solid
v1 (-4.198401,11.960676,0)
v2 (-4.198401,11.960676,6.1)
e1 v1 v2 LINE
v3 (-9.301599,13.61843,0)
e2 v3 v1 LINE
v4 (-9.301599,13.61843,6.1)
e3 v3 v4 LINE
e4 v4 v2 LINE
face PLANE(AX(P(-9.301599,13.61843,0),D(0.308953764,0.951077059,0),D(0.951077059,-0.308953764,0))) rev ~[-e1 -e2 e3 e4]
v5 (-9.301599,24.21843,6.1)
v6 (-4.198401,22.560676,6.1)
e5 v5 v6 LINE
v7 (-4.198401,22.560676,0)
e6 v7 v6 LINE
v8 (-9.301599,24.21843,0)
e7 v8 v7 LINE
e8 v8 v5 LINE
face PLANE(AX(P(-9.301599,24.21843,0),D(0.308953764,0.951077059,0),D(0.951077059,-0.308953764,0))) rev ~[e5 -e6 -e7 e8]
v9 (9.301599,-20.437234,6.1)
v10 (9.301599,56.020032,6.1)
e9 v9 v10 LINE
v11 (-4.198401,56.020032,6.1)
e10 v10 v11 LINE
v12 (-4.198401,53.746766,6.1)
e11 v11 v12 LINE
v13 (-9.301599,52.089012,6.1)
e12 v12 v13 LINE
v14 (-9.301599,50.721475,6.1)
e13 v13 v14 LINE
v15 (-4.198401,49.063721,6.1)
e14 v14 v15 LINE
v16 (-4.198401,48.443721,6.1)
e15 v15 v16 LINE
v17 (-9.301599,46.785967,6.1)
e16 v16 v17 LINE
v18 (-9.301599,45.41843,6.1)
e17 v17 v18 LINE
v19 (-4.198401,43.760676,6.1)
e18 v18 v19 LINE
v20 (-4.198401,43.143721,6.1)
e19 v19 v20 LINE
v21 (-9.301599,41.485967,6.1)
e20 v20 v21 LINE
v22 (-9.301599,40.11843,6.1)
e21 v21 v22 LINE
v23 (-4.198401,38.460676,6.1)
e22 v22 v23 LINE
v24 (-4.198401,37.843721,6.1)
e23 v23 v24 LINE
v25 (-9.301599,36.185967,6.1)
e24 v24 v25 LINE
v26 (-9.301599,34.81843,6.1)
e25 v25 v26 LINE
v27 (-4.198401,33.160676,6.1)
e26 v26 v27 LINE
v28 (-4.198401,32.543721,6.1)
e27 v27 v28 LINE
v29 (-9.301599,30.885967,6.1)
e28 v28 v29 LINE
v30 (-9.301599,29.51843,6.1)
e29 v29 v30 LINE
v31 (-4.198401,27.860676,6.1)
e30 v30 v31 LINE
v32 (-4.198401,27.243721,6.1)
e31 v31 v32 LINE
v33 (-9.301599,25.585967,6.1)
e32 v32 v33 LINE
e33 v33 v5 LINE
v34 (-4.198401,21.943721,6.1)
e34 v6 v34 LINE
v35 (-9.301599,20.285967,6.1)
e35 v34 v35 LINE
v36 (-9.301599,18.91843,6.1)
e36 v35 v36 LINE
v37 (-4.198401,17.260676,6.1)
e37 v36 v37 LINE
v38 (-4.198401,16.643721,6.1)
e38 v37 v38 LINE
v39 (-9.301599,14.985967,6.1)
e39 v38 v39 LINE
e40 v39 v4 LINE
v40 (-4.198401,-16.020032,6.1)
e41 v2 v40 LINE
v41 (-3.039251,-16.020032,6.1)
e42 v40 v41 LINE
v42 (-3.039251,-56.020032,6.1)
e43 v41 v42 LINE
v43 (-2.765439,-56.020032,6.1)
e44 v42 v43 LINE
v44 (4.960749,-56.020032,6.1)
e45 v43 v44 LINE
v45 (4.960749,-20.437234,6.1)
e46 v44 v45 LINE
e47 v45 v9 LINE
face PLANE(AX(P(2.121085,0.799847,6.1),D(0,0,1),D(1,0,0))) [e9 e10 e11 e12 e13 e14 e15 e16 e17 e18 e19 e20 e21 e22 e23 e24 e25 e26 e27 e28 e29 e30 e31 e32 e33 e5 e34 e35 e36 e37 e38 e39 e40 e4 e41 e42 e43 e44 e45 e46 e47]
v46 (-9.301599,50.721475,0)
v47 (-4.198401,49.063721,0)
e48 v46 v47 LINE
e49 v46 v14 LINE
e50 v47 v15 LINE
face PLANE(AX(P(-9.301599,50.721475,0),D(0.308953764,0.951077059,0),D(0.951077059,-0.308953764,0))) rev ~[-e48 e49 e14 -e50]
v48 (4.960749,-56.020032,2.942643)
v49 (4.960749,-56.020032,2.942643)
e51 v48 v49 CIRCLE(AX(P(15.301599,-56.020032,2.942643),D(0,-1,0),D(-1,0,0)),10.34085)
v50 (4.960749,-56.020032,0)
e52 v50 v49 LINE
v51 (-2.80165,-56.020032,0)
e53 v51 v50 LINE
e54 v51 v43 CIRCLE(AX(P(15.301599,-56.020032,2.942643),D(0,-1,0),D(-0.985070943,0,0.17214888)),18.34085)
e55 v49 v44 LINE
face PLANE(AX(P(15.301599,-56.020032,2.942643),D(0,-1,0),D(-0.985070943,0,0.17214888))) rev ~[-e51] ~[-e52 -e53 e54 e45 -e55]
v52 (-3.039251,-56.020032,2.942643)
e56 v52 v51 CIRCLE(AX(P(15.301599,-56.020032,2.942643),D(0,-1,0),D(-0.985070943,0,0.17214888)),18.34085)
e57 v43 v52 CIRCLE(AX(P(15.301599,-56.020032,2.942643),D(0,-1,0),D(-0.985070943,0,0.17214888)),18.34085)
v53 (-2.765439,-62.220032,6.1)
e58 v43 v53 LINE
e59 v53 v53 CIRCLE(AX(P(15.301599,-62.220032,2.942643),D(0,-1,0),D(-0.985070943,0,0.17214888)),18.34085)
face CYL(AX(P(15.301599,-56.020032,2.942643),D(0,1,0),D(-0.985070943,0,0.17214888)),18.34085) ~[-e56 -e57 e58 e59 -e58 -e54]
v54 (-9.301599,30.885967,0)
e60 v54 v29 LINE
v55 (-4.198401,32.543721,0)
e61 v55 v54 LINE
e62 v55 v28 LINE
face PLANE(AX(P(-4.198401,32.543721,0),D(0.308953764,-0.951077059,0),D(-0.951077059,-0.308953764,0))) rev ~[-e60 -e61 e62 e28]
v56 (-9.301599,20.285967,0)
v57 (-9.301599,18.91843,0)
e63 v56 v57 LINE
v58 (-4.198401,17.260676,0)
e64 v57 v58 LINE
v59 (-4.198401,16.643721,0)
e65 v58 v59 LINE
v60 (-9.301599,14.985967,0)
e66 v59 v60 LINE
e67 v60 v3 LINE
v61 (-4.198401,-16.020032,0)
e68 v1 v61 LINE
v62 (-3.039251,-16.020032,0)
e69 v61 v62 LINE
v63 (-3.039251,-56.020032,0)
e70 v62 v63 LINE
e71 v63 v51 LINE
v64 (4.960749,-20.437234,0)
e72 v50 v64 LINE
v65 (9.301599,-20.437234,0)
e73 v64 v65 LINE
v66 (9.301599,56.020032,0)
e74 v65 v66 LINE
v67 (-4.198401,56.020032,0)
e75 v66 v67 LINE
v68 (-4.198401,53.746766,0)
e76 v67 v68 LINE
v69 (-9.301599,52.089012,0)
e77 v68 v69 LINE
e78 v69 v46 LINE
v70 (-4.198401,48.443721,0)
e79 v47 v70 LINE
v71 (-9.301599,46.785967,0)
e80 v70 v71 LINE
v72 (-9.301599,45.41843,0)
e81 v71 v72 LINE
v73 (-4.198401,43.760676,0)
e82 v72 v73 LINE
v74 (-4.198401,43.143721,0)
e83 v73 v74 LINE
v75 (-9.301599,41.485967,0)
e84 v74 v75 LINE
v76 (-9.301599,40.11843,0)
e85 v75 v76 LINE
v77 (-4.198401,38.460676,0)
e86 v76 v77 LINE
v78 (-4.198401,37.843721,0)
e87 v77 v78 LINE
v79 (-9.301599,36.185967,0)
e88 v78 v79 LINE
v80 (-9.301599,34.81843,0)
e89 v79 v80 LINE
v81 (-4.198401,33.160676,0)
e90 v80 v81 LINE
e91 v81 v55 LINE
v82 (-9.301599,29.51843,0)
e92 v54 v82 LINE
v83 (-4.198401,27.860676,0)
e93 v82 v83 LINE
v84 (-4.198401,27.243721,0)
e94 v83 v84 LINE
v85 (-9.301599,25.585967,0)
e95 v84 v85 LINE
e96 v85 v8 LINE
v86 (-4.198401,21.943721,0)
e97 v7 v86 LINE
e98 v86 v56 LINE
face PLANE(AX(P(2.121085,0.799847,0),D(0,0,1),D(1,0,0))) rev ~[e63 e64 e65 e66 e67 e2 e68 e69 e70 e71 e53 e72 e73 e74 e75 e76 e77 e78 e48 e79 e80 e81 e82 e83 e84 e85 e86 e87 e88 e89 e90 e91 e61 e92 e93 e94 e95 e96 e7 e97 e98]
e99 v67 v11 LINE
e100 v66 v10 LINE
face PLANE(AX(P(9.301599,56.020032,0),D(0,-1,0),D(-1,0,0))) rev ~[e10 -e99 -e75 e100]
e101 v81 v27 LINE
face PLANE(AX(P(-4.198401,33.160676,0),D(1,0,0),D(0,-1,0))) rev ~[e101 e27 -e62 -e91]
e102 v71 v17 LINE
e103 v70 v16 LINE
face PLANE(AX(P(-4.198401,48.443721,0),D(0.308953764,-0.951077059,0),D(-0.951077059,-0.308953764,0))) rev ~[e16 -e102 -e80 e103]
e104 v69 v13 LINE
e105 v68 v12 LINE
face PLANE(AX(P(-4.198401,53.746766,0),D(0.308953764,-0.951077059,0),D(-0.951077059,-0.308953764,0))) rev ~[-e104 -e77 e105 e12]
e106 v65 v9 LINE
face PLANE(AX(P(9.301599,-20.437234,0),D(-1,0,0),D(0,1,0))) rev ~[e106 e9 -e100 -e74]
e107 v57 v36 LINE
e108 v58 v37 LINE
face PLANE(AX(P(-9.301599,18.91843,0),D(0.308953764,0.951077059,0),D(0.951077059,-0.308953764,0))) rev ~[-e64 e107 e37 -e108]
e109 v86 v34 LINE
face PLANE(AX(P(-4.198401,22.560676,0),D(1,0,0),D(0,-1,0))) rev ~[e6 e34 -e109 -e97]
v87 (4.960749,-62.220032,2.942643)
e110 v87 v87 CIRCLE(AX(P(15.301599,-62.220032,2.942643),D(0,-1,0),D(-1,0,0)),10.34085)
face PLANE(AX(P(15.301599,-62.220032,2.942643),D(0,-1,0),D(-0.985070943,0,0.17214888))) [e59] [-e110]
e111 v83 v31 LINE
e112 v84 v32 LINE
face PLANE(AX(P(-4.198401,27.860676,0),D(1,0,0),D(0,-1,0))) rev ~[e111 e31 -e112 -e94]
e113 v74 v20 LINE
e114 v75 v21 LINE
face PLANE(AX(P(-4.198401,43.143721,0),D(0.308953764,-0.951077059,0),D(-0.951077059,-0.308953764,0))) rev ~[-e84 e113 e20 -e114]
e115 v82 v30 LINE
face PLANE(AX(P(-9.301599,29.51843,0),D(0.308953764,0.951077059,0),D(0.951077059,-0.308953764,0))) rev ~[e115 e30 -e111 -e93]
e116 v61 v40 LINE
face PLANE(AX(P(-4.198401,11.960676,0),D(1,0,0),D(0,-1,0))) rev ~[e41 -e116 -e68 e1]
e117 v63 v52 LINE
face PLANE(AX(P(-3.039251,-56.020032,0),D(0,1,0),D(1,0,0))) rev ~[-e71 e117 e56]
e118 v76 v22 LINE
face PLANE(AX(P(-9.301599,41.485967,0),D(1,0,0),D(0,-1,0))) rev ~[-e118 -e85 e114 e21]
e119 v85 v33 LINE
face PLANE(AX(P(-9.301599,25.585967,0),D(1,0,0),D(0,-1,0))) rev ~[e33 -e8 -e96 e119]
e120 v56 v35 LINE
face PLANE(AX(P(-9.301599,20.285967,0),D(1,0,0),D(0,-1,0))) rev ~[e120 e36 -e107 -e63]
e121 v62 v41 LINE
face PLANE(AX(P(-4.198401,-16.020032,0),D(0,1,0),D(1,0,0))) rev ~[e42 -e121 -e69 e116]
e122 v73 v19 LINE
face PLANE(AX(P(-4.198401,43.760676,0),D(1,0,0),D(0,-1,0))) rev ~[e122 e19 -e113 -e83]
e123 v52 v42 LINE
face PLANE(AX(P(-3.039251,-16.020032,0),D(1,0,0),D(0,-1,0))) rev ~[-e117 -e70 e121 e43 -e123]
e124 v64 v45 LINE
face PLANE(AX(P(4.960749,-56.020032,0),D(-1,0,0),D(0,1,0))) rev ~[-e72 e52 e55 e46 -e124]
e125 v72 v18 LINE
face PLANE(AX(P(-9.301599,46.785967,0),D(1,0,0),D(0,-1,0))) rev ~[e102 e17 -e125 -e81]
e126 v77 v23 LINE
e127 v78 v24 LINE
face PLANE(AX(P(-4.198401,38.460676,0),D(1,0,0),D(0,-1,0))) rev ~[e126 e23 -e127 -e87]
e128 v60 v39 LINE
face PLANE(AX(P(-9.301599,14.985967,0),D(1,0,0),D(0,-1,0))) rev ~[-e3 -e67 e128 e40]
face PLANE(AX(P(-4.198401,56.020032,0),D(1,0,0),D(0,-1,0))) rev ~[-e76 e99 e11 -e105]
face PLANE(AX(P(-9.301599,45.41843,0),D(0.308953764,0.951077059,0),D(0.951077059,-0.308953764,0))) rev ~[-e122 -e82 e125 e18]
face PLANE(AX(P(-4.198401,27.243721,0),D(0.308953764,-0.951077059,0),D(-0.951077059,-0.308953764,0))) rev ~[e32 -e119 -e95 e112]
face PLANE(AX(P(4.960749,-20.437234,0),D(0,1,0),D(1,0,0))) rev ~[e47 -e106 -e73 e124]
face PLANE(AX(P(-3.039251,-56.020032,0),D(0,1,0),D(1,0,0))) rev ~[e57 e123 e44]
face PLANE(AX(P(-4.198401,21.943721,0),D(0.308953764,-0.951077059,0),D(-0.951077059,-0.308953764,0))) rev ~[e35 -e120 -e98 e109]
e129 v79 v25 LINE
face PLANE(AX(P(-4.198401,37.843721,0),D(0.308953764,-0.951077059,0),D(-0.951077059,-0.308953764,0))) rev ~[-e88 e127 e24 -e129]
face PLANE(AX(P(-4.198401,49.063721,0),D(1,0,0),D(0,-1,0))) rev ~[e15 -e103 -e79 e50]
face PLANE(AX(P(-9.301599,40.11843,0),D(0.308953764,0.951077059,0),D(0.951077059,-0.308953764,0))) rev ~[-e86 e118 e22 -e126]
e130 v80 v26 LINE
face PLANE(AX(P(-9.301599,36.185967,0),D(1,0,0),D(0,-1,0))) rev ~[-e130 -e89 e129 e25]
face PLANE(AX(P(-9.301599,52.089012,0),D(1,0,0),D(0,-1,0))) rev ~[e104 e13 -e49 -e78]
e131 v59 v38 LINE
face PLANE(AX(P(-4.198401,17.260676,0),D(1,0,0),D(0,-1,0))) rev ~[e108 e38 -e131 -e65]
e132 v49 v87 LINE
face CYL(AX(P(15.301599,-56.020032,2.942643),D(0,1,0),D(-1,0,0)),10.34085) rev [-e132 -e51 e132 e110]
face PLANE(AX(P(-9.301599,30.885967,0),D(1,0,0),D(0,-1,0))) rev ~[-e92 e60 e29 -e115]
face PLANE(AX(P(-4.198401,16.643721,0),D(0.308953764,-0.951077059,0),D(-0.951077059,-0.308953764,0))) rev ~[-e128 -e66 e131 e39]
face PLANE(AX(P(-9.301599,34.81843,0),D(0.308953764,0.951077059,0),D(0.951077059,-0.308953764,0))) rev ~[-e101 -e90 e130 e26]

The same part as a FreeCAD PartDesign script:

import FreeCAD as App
import Part
import Sketcher

doc = App.newDocument("Part")
params = doc.addObject("Spreadsheet::Sheet", "Params")
for row, (alias, value) in enumerate([
    ("sketch1_width", "8 mm"),
    ("sketch1_height", "40 mm"),
    ("sketch1_width2", "13.5 mm"),
    ("sketch1_height2", "0.62 mm"),
    ("pad1_length", "6.1 mm"),
    ("pad2_length", "6.2 mm"),
], start=1):
    params.set(f"A{row}", alias)
    params.set(f"B{row}", "=" + value)
    params.setAlias(f"B{row}", alias)

body = doc.addObject("PartDesign::Body", "Body")

# Sketch on XY plane
sketch1 = body.newObject("Sketcher::SketchObject", "Sketch")
sketch1.AttachmentSupport = (doc.getObject("XY_Plane"), [""])
sketch1.MapMode = "FlatFace"
sketch1.addGeometry([
    Part.LineSegment(App.Vector(9.3, 56, 0), App.Vector(-4.2, 56, 0)),  # 0
    Part.LineSegment(App.Vector(-4.2, 56, 0), App.Vector(-4.2, 53.7, 0)),  # 1
    Part.LineSegment(App.Vector(-4.2, 53.7, 0), App.Vector(-9.3, 52.1, 0)),  # 2
    Part.LineSegment(App.Vector(-9.3, 52.1, 0), App.Vector(-9.3, 50.7, 0)),  # 3
    Part.LineSegment(App.Vector(-9.3, 50.7, 0), App.Vector(-4.2, 49.1, 0)),  # 4
    Part.LineSegment(App.Vector(-4.2, 49.1, 0), App.Vector(-4.2, 48.4, 0)),  # 5
    Part.LineSegment(App.Vector(-4.2, 48.4, 0), App.Vector(-9.3, 46.8, 0)),  # 6
    Part.LineSegment(App.Vector(-9.3, 46.8, 0), App.Vector(-9.3, 45.4, 0)),  # 7
    Part.LineSegment(App.Vector(-9.3, 45.4, 0), App.Vector(-4.2, 43.8, 0)),  # 8
    Part.LineSegment(App.Vector(-4.2, 43.8, 0), App.Vector(-4.2, 43.1, 0)),  # 9
    Part.LineSegment(App.Vector(-4.2, 43.1, 0), App.Vector(-9.3, 41.5, 0)),  # 10
    Part.LineSegment(App.Vector(-9.3, 41.5, 0), App.Vector(-9.3, 40.1, 0)),  # 11
    Part.LineSegment(App.Vector(-9.3, 40.1, 0), App.Vector(-4.2, 38.5, 0)),  # 12
    Part.LineSegment(App.Vector(-4.2, 38.5, 0), App.Vector(-4.2, 37.8, 0)),  # 13
    Part.LineSegment(App.Vector(-4.2, 37.8, 0), App.Vector(-9.3, 36.2, 0)),  # 14
    Part.LineSegment(App.Vector(-9.3, 36.2, 0), App.Vector(-9.3, 34.8, 0)),  # 15
    Part.LineSegment(App.Vector(-9.3, 34.8, 0), App.Vector(-4.2, 33.2, 0)),  # 16
    Part.LineSegment(App.Vector(-4.2, 33.2, 0), App.Vector(-4.2, 32.5, 0)),  # 17
    Part.LineSegment(App.Vector(-4.2, 32.5, 0), App.Vector(-9.3, 30.9, 0)),  # 18
    Part.LineSegment(App.Vector(-9.3, 30.9, 0), App.Vector(-9.3, 29.5, 0)),  # 19
    Part.LineSegment(App.Vector(-9.3, 29.5, 0), App.Vector(-4.2, 27.9, 0)),  # 20
    Part.LineSegment(App.Vector(-4.2, 27.9, 0), App.Vector(-4.2, 27.2, 0)),  # 21
    Part.LineSegment(App.Vector(-4.2, 27.2, 0), App.Vector(-9.3, 25.6, 0)),  # 22
    Part.LineSegment(App.Vector(-9.3, 25.6, 0), App.Vector(-9.3, 24.2, 0)),  # 23
    Part.LineSegment(App.Vector(-9.3, 24.2, 0), App.Vector(-4.2, 22.6, 0)),  # 24
    Part.LineSegment(App.Vector(-4.2, 22.6, 0), App.Vector(-4.2, 21.9, 0)),  # 25
    Part.LineSegment(App.Vector(-4.2, 21.9, 0), App.Vector(-9.3, 20.3, 0)),  # 26
    Part.LineSegment(App.Vector(-9.3, 20.3, 0), App.Vector(-9.3, 18.9, 0)),  # 27
    Part.LineSegment(App.Vector(-9.3, 18.9, 0), App.Vector(-4.2, 17.3, 0)),  # 28
    Part.LineSegment(App.Vector(-4.2, 17.3, 0), App.Vector(-4.2, 16.6, 0)),  # 29
    Part.LineSegment(App.Vector(-4.2, 16.6, 0), App.Vector(-9.3, 15, 0)),  # 30
    Part.LineSegment(App.Vector(-9.3, 15, 0), App.Vector(-9.3, 13.6, 0)),  # 31
    Part.LineSegment(App.Vector(-9.3, 13.6, 0), App.Vector(-4.2, 12, 0)),  # 32
    Part.LineSegment(App.Vector(-4.2, 12, 0), App.Vector(-4.2, -16, 0)),  # 33
    Part.LineSegment(App.Vector(-4.2, -16, 0), App.Vector(-3, -16, 0)),  # 34
    Part.LineSegment(App.Vector(-3, -16, 0), App.Vector(-3, -56, 0)),  # 35
    Part.LineSegment(App.Vector(-3, -56, 0), App.Vector(5, -56, 0)),  # 36
    Part.LineSegment(App.Vector(5, -56, 0), App.Vector(5, -20.4, 0)),  # 37
    Part.LineSegment(App.Vector(5, -20.4, 0), App.Vector(9.3, -20.4, 0)),  # 38
    Part.LineSegment(App.Vector(9.3, -20.4, 0), App.Vector(9.3, 56, 0)),  # 39
], False)
sketch1.addConstraint([
    Sketcher.Constraint("Coincident", 0, 2, 1, 1),
    Sketcher.Constraint("Coincident", 1, 2, 2, 1),
    Sketcher.Constraint("Coincident", 2, 2, 3, 1),
    Sketcher.Constraint("Coincident", 3, 2, 4, 1),
    Sketcher.Constraint("Coincident", 4, 2, 5, 1),
    Sketcher.Constraint("Coincident", 5, 2, 6, 1),
    Sketcher.Constraint("Coincident", 6, 2, 7, 1),
    Sketcher.Constraint("Coincident", 7, 2, 8, 1),
    Sketcher.Constraint("Coincident", 8, 2, 9, 1),
    Sketcher.Constraint("Coincident", 9, 2, 10, 1),
    Sketcher.Constraint("Coincident", 10, 2, 11, 1),
    Sketcher.Constraint("Coincident", 11, 2, 12, 1),
    Sketcher.Constraint("Coincident", 12, 2, 13, 1),
    Sketcher.Constraint("Coincident", 13, 2, 14, 1),
    Sketcher.Constraint("Coincident", 14, 2, 15, 1),
    Sketcher.Constraint("Coincident", 15, 2, 16, 1),
    Sketcher.Constraint("Coincident", 16, 2, 17, 1),
    Sketcher.Constraint("Coincident", 17, 2, 18, 1),
    Sketcher.Constraint("Coincident", 18, 2, 19, 1),
    Sketcher.Constraint("Coincident", 19, 2, 20, 1),
    Sketcher.Constraint("Coincident", 20, 2, 21, 1),
    Sketcher.Constraint("Coincident", 21, 2, 22, 1),
    Sketcher.Constraint("Coincident", 22, 2, 23, 1),
    Sketcher.Constraint("Coincident", 23, 2, 24, 1),
    Sketcher.Constraint("Coincident", 24, 2, 25, 1),
    Sketcher.Constraint("Coincident", 25, 2, 26, 1),
    Sketcher.Constraint("Coincident", 26, 2, 27, 1),
    Sketcher.Constraint("Coincident", 27, 2, 28, 1),
    Sketcher.Constraint("Coincident", 28, 2, 29, 1),
    Sketcher.Constraint("Coincident", 29, 2, 30, 1),
    Sketcher.Constraint("Coincident", 30, 2, 31, 1),
    Sketcher.Constraint("Coincident", 31, 2, 32, 1),
    Sketcher.Constraint("Coincident", 32, 2, 33, 1),
    Sketcher.Constraint("Coincident", 33, 2, 34, 1),
    Sketcher.Constraint("Coincident", 34, 2, 35, 1),
    Sketcher.Constraint("Coincident", 35, 2, 36, 1),
    Sketcher.Constraint("Coincident", 36, 2, 37, 1),
    Sketcher.Constraint("Coincident", 37, 2, 38, 1),
    Sketcher.Constraint("Coincident", 38, 2, 39, 1),
    Sketcher.Constraint("Coincident", 39, 2, 0, 1),
    Sketcher.Constraint("Horizontal", 0),
    Sketcher.Constraint("Vertical", 1),
    Sketcher.Constraint("Vertical", 3),
    Sketcher.Constraint("Vertical", 5),
    Sketcher.Constraint("Vertical", 7),
    Sketcher.Constraint("Vertical", 9),
    Sketcher.Constraint("Vertical", 11),
    Sketcher.Constraint("Vertical", 13),
    Sketcher.Constraint("Vertical", 15),
    Sketcher.Constraint("Vertical", 17),
    Sketcher.Constraint("Vertical", 19),
    Sketcher.Constraint("Vertical", 21),
    Sketcher.Constraint("Vertical", 23),
    Sketcher.Constraint("Vertical", 25),
    Sketcher.Constraint("Vertical", 27),
    Sketcher.Constraint("Vertical", 29),
    Sketcher.Constraint("Vertical", 31),
    Sketcher.Constraint("Vertical", 33),
    Sketcher.Constraint("Horizontal", 34),
    Sketcher.Constraint("Vertical", 35),
    Sketcher.Constraint("Horizontal", 36),
    Sketcher.Constraint("Vertical", 37),
    Sketcher.Constraint("Horizontal", 38),
    Sketcher.Constraint("Vertical", 39),
    Sketcher.Constraint("Parallel", 2, 6),
    Sketcher.Constraint("Parallel", 4, 8),
    Sketcher.Constraint("Parallel", 6, 10),
    Sketcher.Constraint("Parallel", 8, 12),
    Sketcher.Constraint("Parallel", 10, 14),
    Sketcher.Constraint("Parallel", 12, 16),
    Sketcher.Constraint("Parallel", 14, 18),
    Sketcher.Constraint("Parallel", 16, 20),
    Sketcher.Constraint("Parallel", 18, 22),
    Sketcher.Constraint("Parallel", 20, 24),
    Sketcher.Constraint("Parallel", 22, 26),
    Sketcher.Constraint("Parallel", 24, 28),
    Sketcher.Constraint("Parallel", 26, 30),
    Sketcher.Constraint("Parallel", 28, 32),
    Sketcher.Constraint("Vertical", 1, 2, 4, 2),
    Sketcher.Constraint("Vertical", 3, 2, 6, 2),
    Sketcher.Constraint("Vertical", 5, 2, 8, 2),
    Sketcher.Constraint("Vertical", 7, 2, 10, 2),
    Sketcher.Constraint("Vertical", 9, 2, 12, 2),
    Sketcher.Constraint("Vertical", 11, 2, 14, 2),
    Sketcher.Constraint("Vertical", 13, 2, 16, 2),
    Sketcher.Constraint("Vertical", 15, 2, 18, 2),
    Sketcher.Constraint("Vertical", 17, 2, 20, 2),
    Sketcher.Constraint("Vertical", 19, 2, 22, 2),
    Sketcher.Constraint("Vertical", 21, 2, 24, 2),
    Sketcher.Constraint("Vertical", 23, 2, 26, 2),
    Sketcher.Constraint("Vertical", 25, 2, 28, 2),
    Sketcher.Constraint("Vertical", 27, 2, 30, 2),
    Sketcher.Constraint("Vertical", 29, 2, 32, 2),
    Sketcher.Constraint("Equal", 3, 7),
    Sketcher.Constraint("Equal", 7, 11),
    Sketcher.Constraint("Equal", 9, 13),
    Sketcher.Constraint("Equal", 11, 15),
    Sketcher.Constraint("Equal", 13, 17),
    Sketcher.Constraint("Equal", 15, 19),
    Sketcher.Constraint("Equal", 17, 21),
    Sketcher.Constraint("Equal", 19, 23),
    Sketcher.Constraint("Equal", 21, 25),
    Sketcher.Constraint("Equal", 23, 27),
    Sketcher.Constraint("Equal", 25, 29),
    Sketcher.Constraint("Equal", 27, 31),
    Sketcher.Constraint("Equal", 2, 4),
    Sketcher.Constraint("DistanceX", 36, 1, 36, 2, 8.0),
    Sketcher.Constraint("DistanceY", 35, 2, 35, 1, 40.0),
    Sketcher.Constraint("DistanceX", 0, 2, 0, 1, 13.5),
    Sketcher.Constraint("DistanceY", 5, 2, 5, 1, 0.62),
    Sketcher.Constraint("DistanceY", 9, 2, 5, 2, 5.3),
    Sketcher.Constraint("DistanceY", 33, 2, 30, 2, 31.005998),
    Sketcher.Constraint("DistanceX", 34, 1, 34, 2, 1.15915),
    Sketcher.Constraint("DistanceX", 0, 2, -1, 1, 4.198401),
    Sketcher.Constraint("DistanceX", 2, 2, -1, 1, 9.301599),
    Sketcher.Constraint("DistanceY", 6, 2, 1, 2, 6.9608),
    Sketcher.Constraint("DistanceY", 1, 2, 1, 1, 2.273265),
    Sketcher.Constraint("DistanceY", 3, 2, 3, 1, 1.367537),
    Sketcher.Constraint("DistanceY", 37, 1, 37, 2, 35.582797),
    Sketcher.Constraint("DistanceY", -1, 1, 0, 2, 56.020032),
])
sketch1.setExpression("Constraints[106]", "Params.sketch1_width")
sketch1.setExpression("Constraints[107]", "Params.sketch1_height")
sketch1.setExpression("Constraints[108]", "Params.sketch1_width2")
sketch1.setExpression("Constraints[109]", "Params.sketch1_height2")
pad1 = body.newObject("PartDesign::Pad", "Pad")
pad1.Profile = sketch1
pad1.setExpression("Length", "Params.pad1_length")

# Sketch on XZ plane
sketch2 = body.newObject("Sketcher::SketchObject", "Sketch001")
sketch2.AttachmentSupport = (doc.getObject("XZ_Plane"), [""])
sketch2.MapMode = "FlatFace"
sketch2.AttachmentOffset = App.Placement(App.Vector(0, 0, 56.020032), App.Rotation())
sketch2.addGeometry([
    Part.Circle(App.Vector(15, 3, 0), App.Vector(0, 0, 1), 18),
    Part.Circle(App.Vector(15, 3, 0), App.Vector(0, 0, 1), 10),
], False)
sketch2.addConstraint([
    Sketcher.Constraint("Coincident", 1, 3, 0, 3),
    Sketcher.Constraint("Diameter", 0, 36.6817),
    Sketcher.Constraint("Diameter", 1, 20.6817),
    Sketcher.Constraint("DistanceX", -1, 1, 0, 3, 15.301599),
    Sketcher.Constraint("DistanceY", -1, 1, 0, 3, 2.942643),
])
pad2 = body.newObject("PartDesign::Pad", "Pad001")
pad2.Profile = sketch2
pad2.setExpression("Length", "Params.pad2_length")

doc.recompute()
